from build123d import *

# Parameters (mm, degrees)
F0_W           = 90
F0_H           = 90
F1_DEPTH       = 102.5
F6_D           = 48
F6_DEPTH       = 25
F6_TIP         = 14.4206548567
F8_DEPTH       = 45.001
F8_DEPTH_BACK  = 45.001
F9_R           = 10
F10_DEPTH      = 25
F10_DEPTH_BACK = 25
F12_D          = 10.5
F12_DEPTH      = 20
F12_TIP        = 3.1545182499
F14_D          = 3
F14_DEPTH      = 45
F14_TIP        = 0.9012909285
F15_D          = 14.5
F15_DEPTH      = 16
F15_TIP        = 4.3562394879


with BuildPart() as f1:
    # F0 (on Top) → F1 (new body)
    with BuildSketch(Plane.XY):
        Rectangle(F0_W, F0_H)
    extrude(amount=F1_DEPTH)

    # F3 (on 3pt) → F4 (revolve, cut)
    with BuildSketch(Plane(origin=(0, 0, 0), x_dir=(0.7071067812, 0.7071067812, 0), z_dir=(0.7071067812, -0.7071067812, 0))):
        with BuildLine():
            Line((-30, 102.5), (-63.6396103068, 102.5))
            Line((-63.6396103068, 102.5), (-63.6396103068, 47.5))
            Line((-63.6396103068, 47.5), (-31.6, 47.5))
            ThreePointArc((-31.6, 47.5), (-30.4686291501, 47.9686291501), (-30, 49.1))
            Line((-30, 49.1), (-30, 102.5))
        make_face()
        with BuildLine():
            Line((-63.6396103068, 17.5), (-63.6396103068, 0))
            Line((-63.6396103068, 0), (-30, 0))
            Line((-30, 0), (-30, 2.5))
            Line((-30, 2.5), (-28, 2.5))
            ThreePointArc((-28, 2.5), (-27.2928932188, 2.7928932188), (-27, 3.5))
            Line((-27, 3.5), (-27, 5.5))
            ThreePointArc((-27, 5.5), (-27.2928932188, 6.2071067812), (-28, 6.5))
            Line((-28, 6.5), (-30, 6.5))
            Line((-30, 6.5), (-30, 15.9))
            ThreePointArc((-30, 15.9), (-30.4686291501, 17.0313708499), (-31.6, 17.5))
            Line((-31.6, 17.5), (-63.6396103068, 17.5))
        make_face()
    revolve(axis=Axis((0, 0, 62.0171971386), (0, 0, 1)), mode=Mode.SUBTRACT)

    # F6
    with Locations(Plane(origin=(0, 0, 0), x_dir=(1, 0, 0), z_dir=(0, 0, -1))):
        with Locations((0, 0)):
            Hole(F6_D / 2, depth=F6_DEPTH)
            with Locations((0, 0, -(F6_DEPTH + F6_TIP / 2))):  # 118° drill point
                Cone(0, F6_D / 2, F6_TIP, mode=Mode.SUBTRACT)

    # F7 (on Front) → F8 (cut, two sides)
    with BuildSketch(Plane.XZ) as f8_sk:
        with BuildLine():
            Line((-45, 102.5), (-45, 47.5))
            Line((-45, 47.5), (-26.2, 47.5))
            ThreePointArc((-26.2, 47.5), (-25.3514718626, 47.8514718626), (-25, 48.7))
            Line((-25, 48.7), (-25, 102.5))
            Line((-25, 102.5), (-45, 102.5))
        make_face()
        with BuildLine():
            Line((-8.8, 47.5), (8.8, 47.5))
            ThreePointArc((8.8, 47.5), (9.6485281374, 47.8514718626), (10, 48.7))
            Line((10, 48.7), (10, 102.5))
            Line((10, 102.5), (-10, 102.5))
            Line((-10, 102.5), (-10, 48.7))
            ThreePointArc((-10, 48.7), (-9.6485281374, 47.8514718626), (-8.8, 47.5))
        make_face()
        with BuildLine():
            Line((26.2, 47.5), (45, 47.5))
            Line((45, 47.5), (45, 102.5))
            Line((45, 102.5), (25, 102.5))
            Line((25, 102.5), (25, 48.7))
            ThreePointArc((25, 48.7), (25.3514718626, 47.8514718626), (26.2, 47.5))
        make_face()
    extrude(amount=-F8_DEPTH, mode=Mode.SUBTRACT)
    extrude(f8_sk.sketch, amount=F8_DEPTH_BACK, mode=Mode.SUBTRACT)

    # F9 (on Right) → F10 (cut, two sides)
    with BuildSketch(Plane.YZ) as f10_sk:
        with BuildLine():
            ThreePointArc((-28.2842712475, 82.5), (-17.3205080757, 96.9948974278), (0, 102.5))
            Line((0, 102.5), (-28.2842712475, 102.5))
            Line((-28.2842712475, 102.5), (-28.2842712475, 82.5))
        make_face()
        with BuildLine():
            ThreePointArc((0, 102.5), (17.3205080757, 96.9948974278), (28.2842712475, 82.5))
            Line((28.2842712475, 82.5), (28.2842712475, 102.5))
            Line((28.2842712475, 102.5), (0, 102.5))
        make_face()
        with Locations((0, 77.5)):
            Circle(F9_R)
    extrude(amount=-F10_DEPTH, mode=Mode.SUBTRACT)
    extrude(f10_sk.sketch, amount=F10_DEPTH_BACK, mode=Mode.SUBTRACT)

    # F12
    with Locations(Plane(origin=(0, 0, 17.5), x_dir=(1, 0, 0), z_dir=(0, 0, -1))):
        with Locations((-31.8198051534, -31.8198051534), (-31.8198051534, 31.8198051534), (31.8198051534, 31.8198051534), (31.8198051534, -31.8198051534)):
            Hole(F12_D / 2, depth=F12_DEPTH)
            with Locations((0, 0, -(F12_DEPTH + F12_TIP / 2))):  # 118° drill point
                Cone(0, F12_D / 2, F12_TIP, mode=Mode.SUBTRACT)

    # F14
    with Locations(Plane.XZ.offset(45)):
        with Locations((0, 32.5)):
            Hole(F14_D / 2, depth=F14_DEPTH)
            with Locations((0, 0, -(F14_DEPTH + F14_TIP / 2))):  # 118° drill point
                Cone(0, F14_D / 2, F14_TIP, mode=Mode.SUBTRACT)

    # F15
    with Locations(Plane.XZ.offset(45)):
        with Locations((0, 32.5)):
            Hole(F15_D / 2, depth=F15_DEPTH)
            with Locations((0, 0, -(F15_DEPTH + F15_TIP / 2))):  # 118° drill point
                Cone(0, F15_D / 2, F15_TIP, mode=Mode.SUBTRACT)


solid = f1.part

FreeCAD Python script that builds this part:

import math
import FreeCAD as App
import Part
import Sketcher
from FreeCAD import Vector
Q = App.Units.Quantity

doc = App.newDocument("Part")
params = doc.addObject("Spreadsheet::Sheet", "Params")
for row, (alias, value) in enumerate([
    ("sketch1_width", "90 mm"),
    ("pad1_length", "102.5 mm"),
    ("sketch2_radius", "1 mm"),
    ("sketch2_radius2", "1.6 mm"),
    ("sketch2_width", "2 mm"),
    ("sketch2_height", "55 mm"),
    ("sketch2_height2", "17.5 mm"),
    ("groove_angle", "360 deg"),
    ("sketch3_diameter", "48 mm"),
    ("hole_diameter", "48 mm"),
    ("hole_depth", "25 mm"),
    ("sketch4_radius", "1.2 mm"),
    ("sketch4_width", "20 mm"),
    ("sketch4_height", "55 mm"),
    ("sketch5_diameter", "20 mm"),
    ("sketch5_radius", "30 mm"),
    ("sketch5_height", "20 mm"),
    ("sketch6_diameter", "10.5 mm"),
    ("hole2_diameter", "10.5 mm"),
    ("hole2_depth", "20 mm"),
    ("sketch7_diameter", "3 mm"),
    ("hole3_diameter", "3 mm"),
    ("hole3_depth", "45 mm"),
    ("sketch8_diameter", "14.5 mm"),
    ("hole4_diameter", "14.5 mm"),
    ("hole4_depth", "16 mm"),
], start=1):
    params.set(f"A{row}", alias)
    params.set(f"B{row}", "=" + value)
    params.setAlias(f"B{row}", alias)

body = doc.addObject("PartDesign::Body", "Body")

# Sketch on XY plane
sketch1 = body.newObject("Sketcher::SketchObject", "Sketch")
sketch1.AttachmentSupport = (doc.getObject("XY_Plane"), [""])
sketch1.MapMode = "FlatFace"
sketch1.addGeometry(Part.LineSegment(Vector(-45, 45, 0), Vector(-45, -45, 0)), False)
sketch1.addGeometry(Part.LineSegment(Vector(-45, -45, 0), Vector(45, -45, 0)), False)
sketch1.addGeometry(Part.LineSegment(Vector(45, -45, 0), Vector(45, 45, 0)), False)
sketch1.addGeometry(Part.LineSegment(Vector(45, 45, 0), Vector(-45, 45, 0)), False)
sketch1.addConstraint(Sketcher.Constraint("Coincident", 0, 2, 1, 1))
sketch1.addConstraint(Sketcher.Constraint("Coincident", 1, 2, 2, 1))
sketch1.addConstraint(Sketcher.Constraint("Coincident", 2, 2, 3, 1))
sketch1.addConstraint(Sketcher.Constraint("Coincident", 3, 2, 0, 1))
sketch1.addConstraint(Sketcher.Constraint("Vertical", 0))
sketch1.addConstraint(Sketcher.Constraint("Horizontal", 1))
sketch1.addConstraint(Sketcher.Constraint("Vertical", 2))
sketch1.addConstraint(Sketcher.Constraint("Horizontal", 3))
sketch1.addConstraint(Sketcher.Constraint("Symmetric", 0, 2, 2, 2, -1, 1))
sketch1.addConstraint(Sketcher.Constraint("Equal", 3, 0))
sketch1.addConstraint(Sketcher.Constraint("DistanceX", 1, 1, 1, 2, Q("90 mm")))
sketch1.setExpression("Constraints[10]", "Params.sketch1_width")
pad1 = body.newObject("PartDesign::Pad", "Pad")
pad1.Profile = sketch1
pad1.setExpression("Length", "Params.pad1_length")

# Sketch on an angled plane
sketch2 = body.newObject("Sketcher::SketchObject", "Sketch001")
sketch2.Placement = App.Placement(Vector(0, 0, 0), App.Rotation(Vector(0.707106781, 0.707106781, 0), Vector(0, 0, 0.999999999), Vector(0.707106781, -0.707106781, 0), "ZXY"))
sketch2.addGeometry(Part.LineSegment(Vector(-30, 102.5, 0), Vector(-63.6, 102.5, 0)), False)
sketch2.addGeometry(Part.LineSegment(Vector(-63.6, 102.5, 0), Vector(-63.6, 47.5, 0)), False)
sketch2.addGeometry(Part.LineSegment(Vector(-63.6, 47.5, 0), Vector(-31.6, 47.5, 0)), False)
sketch2.addGeometry(Part.ArcOfCircle(Part.Circle(Vector(-31.6, 49.1, 0), Vector(0, 0, 1), 1.6), math.radians(-90), math.radians(0)), False)
sketch2.addGeometry(Part.LineSegment(Vector(-30, 49.1, 0), Vector(-30, 102.5, 0)), False)
sketch2.addGeometry(Part.LineSegment(Vector(-63.6, 17.5, 0), Vector(-63.6, 0, 0)), False)
sketch2.addGeometry(Part.LineSegment(Vector(-63.6, 0, 0), Vector(-30, 0, 0)), False)
sketch2.addGeometry(Part.LineSegment(Vector(-30, 0, 0), Vector(-30, 2.5, 0)), False)
sketch2.addGeometry(Part.LineSegment(Vector(-30, 2.5, 0), Vector(-28, 2.5, 0)), False)
sketch2.addGeometry(Part.ArcOfCircle(Part.Circle(Vector(-28, 3.5, 0), Vector(0, 0, 1), 1), math.radians(-90), math.radians(0)), False)
sketch2.addGeometry(Part.LineSegment(Vector(-27, 3.5, 0), Vector(-27, 5.5, 0)), False)
sketch2.addGeometry(Part.ArcOfCircle(Part.Circle(Vector(-28, 5.5, 0), Vector(0, 0, 1), 1), math.radians(0), math.radians(90)), False)
sketch2.addGeometry(Part.LineSegment(Vector(-28, 6.5, 0), Vector(-30, 6.5, 0)), False)
sketch2.addGeometry(Part.LineSegment(Vector(-30, 6.5, 0), Vector(-30, 15.9, 0)), False)
sketch2.addGeometry(Part.ArcOfCircle(Part.Circle(Vector(-31.6, 15.9, 0), Vector(0, 0, 1), 1.6), math.radians(0), math.radians(90)), False)
sketch2.addGeometry(Part.LineSegment(Vector(-31.6, 17.5, 0), Vector(-63.6, 17.5, 0)), False)
sketch2.addConstraint(Sketcher.Constraint("Coincident", 0, 2, 1, 1))
sketch2.addConstraint(Sketcher.Constraint("Coincident", 1, 2, 2, 1))
sketch2.addConstraint(Sketcher.Constraint("Tangent", 2, 2, 3, 1))
sketch2.addConstraint(Sketcher.Constraint("Tangent", 3, 2, 4, 1))
sketch2.addConstraint(Sketcher.Constraint("Coincident", 4, 2, 0, 1))
sketch2.addConstraint(Sketcher.Constraint("Coincident", 5, 2, 6, 1))
sketch2.addConstraint(Sketcher.Constraint("Coincident", 6, 2, 7, 1))
sketch2.addConstraint(Sketcher.Constraint("Coincident", 7, 2, 8, 1))
sketch2.addConstraint(Sketcher.Constraint("Tangent", 8, 2, 9, 1))
sketch2.addConstraint(Sketcher.Constraint("Tangent", 9, 2, 10, 1))
sketch2.addConstraint(Sketcher.Constraint("Tangent", 10, 2, 11, 1))
sketch2.addConstraint(Sketcher.Constraint("Tangent", 11, 2, 12, 1))
sketch2.addConstraint(Sketcher.Constraint("Coincident", 12, 2, 13, 1))
sketch2.addConstraint(Sketcher.Constraint("Tangent", 13, 2, 14, 1))
sketch2.addConstraint(Sketcher.Constraint("Tangent", 14, 2, 15, 1))
sketch2.addConstraint(Sketcher.Constraint("Coincident", 15, 2, 5, 1))
sketch2.addConstraint(Sketcher.Constraint("Horizontal", 0))
sketch2.addConstraint(Sketcher.Constraint("Vertical", 1))
sketch2.addConstraint(Sketcher.Constraint("Horizontal", 2))
sketch2.addConstraint(Sketcher.Constraint("Vertical", 4))
sketch2.addConstraint(Sketcher.Constraint("Vertical", 5))
sketch2.addConstraint(Sketcher.Constraint("Horizontal", 6))
sketch2.addConstraint(Sketcher.Constraint("Vertical", 7))
sketch2.addConstraint(Sketcher.Constraint("Horizontal", 8))
sketch2.addConstraint(Sketcher.Constraint("Vertical", 10))
sketch2.addConstraint(Sketcher.Constraint("Horizontal", 12))
sketch2.addConstraint(Sketcher.Constraint("Vertical", 13))
sketch2.addConstraint(Sketcher.Constraint("Horizontal", 15))
sketch2.addConstraint(Sketcher.Constraint("Equal", 9, 11))
sketch2.addConstraint(Sketcher.Constraint("Equal", 3, 14))
sketch2.addConstraint(Sketcher.Constraint("PointOnObject", 5, 2, -1))
sketch2.addConstraint(Sketcher.Constraint("Vertical", 3, 3, 14, 3))
sketch2.addConstraint(Sketcher.Constraint("Vertical", 1, 2, 5, 2))
sketch2.addConstraint(Sketcher.Constraint("Vertical", 4, 2, 6, 2))
sketch2.addConstraint(Sketcher.Constraint("Equal", 12, 10))
sketch2.addConstraint(Sketcher.Constraint("Radius", 9, Q("1 mm")))
sketch2.addConstraint(Sketcher.Constraint("Radius", 3, Q("1.6 mm")))
sketch2.addConstraint(Sketcher.Constraint("DistanceX", 8, 1, 8, 2, Q("2 mm")))
sketch2.addConstraint(Sketcher.Constraint("DistanceY", 1, 2, 1, 1, Q("55 mm")))
sketch2.addConstraint(Sketcher.Constraint("DistanceY", 5, 2, 5, 1, Q("17.5 mm")))
sketch2.addConstraint(Sketcher.Constraint("DistanceY", 7, 1, 7, 2, Q("2.5 mm")))
sketch2.addConstraint(Sketcher.Constraint("DistanceX", 9, 3, -1, 1, Q("28 mm")))
sketch2.addConstraint(Sketcher.Constraint("DistanceY", 11, 3, 0, 2, Q("97 mm")))
sketch2.addConstraint(Sketcher.Constraint("DistanceX", 0, 2, 0, 1, Q("33.63961 mm")))
sketch2.setExpression("Constraints[35]", "Params.sketch2_radius")
sketch2.setExpression("Constraints[36]", "Params.sketch2_radius2")
sketch2.setExpression("Constraints[37]", "Params.sketch2_width")
sketch2.setExpression("Constraints[38]", "Params.sketch2_height")
sketch2.setExpression("Constraints[39]", "Params.sketch2_height2")
groove = body.newObject("PartDesign::Groove", "Groove")
groove.Profile = sketch2
groove.ReferenceAxis = (sketch2, ["V_Axis"])
groove.setExpression("Angle", "Params.groove_angle")

# Sketch on XY plane
sketch3 = body.newObject("Sketcher::SketchObject", "Sketch002")
sketch3.AttachmentSupport = (doc.getObject("XY_Plane"), [""])
sketch3.MapMode = "FlatFace"
sketch3.addGeometry(Part.Circle(Vector(0, 0, 0), Vector(0, 0, 1), 24), False)
sketch3.addConstraint(Sketcher.Constraint("Coincident", 0, 3, -1, 1))
sketch3.addConstraint(Sketcher.Constraint("Diameter", 0, Q("48 mm")))
sketch3.setExpression("Constraints[1]", "Params.sketch3_diameter")
doc.recompute()
hole = body.newObject("PartDesign::Hole", "Hole")
hole.Profile = sketch3
hole.ThreadType = "None"
hole.setExpression("Diameter", "Params.hole_diameter")
hole.DepthType = "Dimension"
hole.setExpression("Depth", "Params.hole_depth")
hole.DrillPoint = "Angled"
hole.DrillPointAngle = 118
hole.Reversed = True

# Sketch on XZ plane
sketch4 = body.newObject("Sketcher::SketchObject", "Sketch003")
sketch4.AttachmentSupport = (doc.getObject("XZ_Plane"), [""])
sketch4.MapMode = "FlatFace"
sketch4.addGeometry(Part.LineSegment(Vector(-45, 102.5, 0), Vector(-45, 47.5, 0)), False)
sketch4.addGeometry(Part.LineSegment(Vector(-45, 47.5, 0), Vector(-26.2, 47.5, 0)), False)
sketch4.addGeometry(Part.ArcOfCircle(Part.Circle(Vector(-26.2, 48.7, 0), Vector(0, 0, 1), 1.2), math.radians(-90), math.radians(0)), False)
sketch4.addGeometry(Part.LineSegment(Vector(-25, 48.7, 0), Vector(-25, 102.5, 0)), False)
sketch4.addGeometry(Part.LineSegment(Vector(-25, 102.5, 0), Vector(-45, 102.5, 0)), False)
sketch4.addGeometry(Part.LineSegment(Vector(-8.8, 47.5, 0), Vector(8.8, 47.5, 0)), False)
sketch4.addGeometry(Part.ArcOfCircle(Part.Circle(Vector(8.8, 48.7, 0), Vector(0, 0, 1), 1.2), math.radians(-90), math.radians(0)), False)
sketch4.addGeometry(Part.LineSegment(Vector(10, 48.7, 0), Vector(10, 102.5, 0)), False)
sketch4.addGeometry(Part.LineSegment(Vector(10, 102.5, 0), Vector(-10, 102.5, 0)), False)
sketch4.addGeometry(Part.LineSegment(Vector(-10, 102.5, 0), Vector(-10, 48.7, 0)), False)
sketch4.addGeometry(Part.ArcOfCircle(Part.Circle(Vector(-8.8, 48.7, 0), Vector(0, 0, 1), 1.2), math.radians(180), math.radians(270)), False)
sketch4.addGeometry(Part.LineSegment(Vector(26.2, 47.5, 0), Vector(45, 47.5, 0)), False)
sketch4.addGeometry(Part.LineSegment(Vector(45, 47.5, 0), Vector(45, 102.5, 0)), False)
sketch4.addGeometry(Part.LineSegment(Vector(45, 102.5, 0), Vector(25, 102.5, 0)), False)
sketch4.addGeometry(Part.LineSegment(Vector(25, 102.5, 0), Vector(25, 48.7, 0)), False)
sketch4.addGeometry(Part.ArcOfCircle(Part.Circle(Vector(26.2, 48.7, 0), Vector(0, 0, 1), 1.2), math.radians(180), math.radians(270)), False)
sketch4.addConstraint(Sketcher.Constraint("Coincident", 0, 2, 1, 1))
sketch4.addConstraint(Sketcher.Constraint("Tangent", 1, 2, 2, 1))
sketch4.addConstraint(Sketcher.Constraint("Tangent", 2, 2, 3, 1))
sketch4.addConstraint(Sketcher.Constraint("Coincident", 3, 2, 4, 1))
sketch4.addConstraint(Sketcher.Constraint("Coincident", 4, 2, 0, 1))
sketch4.addConstraint(Sketcher.Constraint("Tangent", 5, 2, 6, 1))
sketch4.addConstraint(Sketcher.Constraint("Tangent", 6, 2, 7, 1))
sketch4.addConstraint(Sketcher.Constraint("Coincident", 7, 2, 8, 1))
sketch4.addConstraint(Sketcher.Constraint("Coincident", 8, 2, 9, 1))
sketch4.addConstraint(Sketcher.Constraint("Tangent", 9, 2, 10, 1))
sketch4.addConstraint(Sketcher.Constraint("Tangent", 10, 2, 5, 1))
sketch4.addConstraint(Sketcher.Constraint("Coincident", 11, 2, 12, 1))
sketch4.addConstraint(Sketcher.Constraint("Coincident", 12, 2, 13, 1))
sketch4.addConstraint(Sketcher.Constraint("Coincident", 13, 2, 14, 1))
sketch4.addConstraint(Sketcher.Constraint("Tangent", 14, 2, 15, 1))
sketch4.addConstraint(Sketcher.Constraint("Tangent", 15, 2, 11, 1))
sketch4.addConstraint(Sketcher.Constraint("Vertical", 0))
sketch4.addConstraint(Sketcher.Constraint("Horizontal", 1))
sketch4.addConstraint(Sketcher.Constraint("Vertical", 3))
sketch4.addConstraint(Sketcher.Constraint("Horizontal", 4))
sketch4.addConstraint(Sketcher.Constraint("Horizontal", 5))
sketch4.addConstraint(Sketcher.Constraint("Vertical", 7))
sketch4.addConstraint(Sketcher.Constraint("Horizontal", 8))
sketch4.addConstraint(Sketcher.Constraint("Vertical", 9))
sketch4.addConstraint(Sketcher.Constraint("Horizontal", 11))
sketch4.addConstraint(Sketcher.Constraint("Vertical", 12))
sketch4.addConstraint(Sketcher.Constraint("Horizontal", 13))
sketch4.addConstraint(Sketcher.Constraint("Vertical", 14))
sketch4.addConstraint(Sketcher.Constraint("Equal", 2, 6))
sketch4.addConstraint(Sketcher.Constraint("Equal", 6, 10))
sketch4.addConstraint(Sketcher.Constraint("Equal", 10, 15))
sketch4.addConstraint(Sketcher.Constraint("Symmetric", 2, 3, 15, 3, -2))
sketch4.addConstraint(Sketcher.Constraint("Symmetric", 4, 2, 12, 2, -2))
sketch4.addConstraint(Sketcher.Constraint("Horizontal", 2, 3, 6, 3))
sketch4.addConstraint(Sketcher.Constraint("Horizontal", 4, 2, 7, 2))
sketch4.addConstraint(Sketcher.Constraint("Equal", 4, 8))
sketch4.addConstraint(Sketcher.Constraint("Radius", 2, Q("1.2 mm")))
sketch4.addConstraint(Sketcher.Constraint("DistanceX", 4, 2, 4, 1, Q("20 mm")))
sketch4.addConstraint(Sketcher.Constraint("DistanceY", 0, 2, 0, 1, Q("55 mm")))
sketch4.addConstraint(Sketcher.Constraint("DistanceX", 0, 2, -1, 1, Q("45 mm")))
sketch4.addConstraint(Sketcher.Constraint("DistanceX", -1, 1, 6, 2, Q("10 mm")))
sketch4.addConstraint(Sketcher.Constraint("DistanceY", -1, 1, 2, 3, Q("48.7 mm")))
sketch4.setExpression("Constraints[36]", "Params.sketch4_radius")
sketch4.setExpression("Constraints[37]", "Params.sketch4_width")
sketch4.setExpression("Constraints[38]", "Params.sketch4_height")
pocket1 = body.newObject("PartDesign::Pocket", "Pocket")
pocket1.Profile = sketch4
pocket1.Type = "ThroughAll"
pocket1.Midplane = True

# Sketch on YZ plane
sketch5 = body.newObject("Sketcher::SketchObject", "Sketch004")
sketch5.AttachmentSupport = (doc.getObject("YZ_Plane"), [""])
sketch5.MapMode = "FlatFace"
sketch5.addGeometry(Part.ArcOfCircle(Part.Circle(Vector(0, 72, 0), Vector(0, 0, 1), 30), math.radians(90), math.radians(161)), False)
sketch5.addGeometry(Part.LineSegment(Vector(0, 102, 0), Vector(-28, 102, 0)), False)
sketch5.addGeometry(Part.LineSegment(Vector(-28, 102, 0), Vector(-28, 82, 0)), False)
sketch5.addGeometry(Part.ArcOfCircle(Part.Circle(Vector(0, 72, 0), Vector(0, 0, 1), 30), math.radians(19), math.radians(90)), False)
sketch5.addGeometry(Part.LineSegment(Vector(28, 82, 0), Vector(28, 102, 0)), False)
sketch5.addGeometry(Part.LineSegment(Vector(28, 102, 0), Vector(0, 102, 0)), False)
sketch5.addGeometry(Part.Circle(Vector(0, 78, 0), Vector(0, 0, 1), 10), False)
sketch5.addConstraint(Sketcher.Constraint("Tangent", 0, 1, 1, 1))
sketch5.addConstraint(Sketcher.Constraint("Coincident", 1, 2, 2, 1))
sketch5.addConstraint(Sketcher.Constraint("Coincident", 2, 2, 0, 2))
sketch5.addConstraint(Sketcher.Constraint("Coincident", 3, 1, 4, 1))
sketch5.addConstraint(Sketcher.Constraint("Coincident", 4, 2, 5, 1))
sketch5.addConstraint(Sketcher.Constraint("Tangent", 5, 2, 3, 2))
sketch5.addConstraint(Sketcher.Constraint("Horizontal", 1))
sketch5.addConstraint(Sketcher.Constraint("Vertical", 2))
sketch5.addConstraint(Sketcher.Constraint("Vertical", 4))
sketch5.addConstraint(Sketcher.Constraint("Horizontal", 5))
sketch5.addConstraint(Sketcher.Constraint("Coincident", 3, 3, 0, 3))
sketch5.addConstraint(Sketcher.Constraint("Equal", 0, 3))
sketch5.addConstraint(Sketcher.Constraint("Symmetric", 2, 2, 3, 1, -2))
sketch5.addConstraint(Sketcher.Constraint("PointOnObject", 6, 3, -2))
sketch5.addConstraint(Sketcher.Constraint("Diameter", 6, Q("20 mm")))
sketch5.addConstraint(Sketcher.Constraint("Radius", 0, Q("30 mm")))
sketch5.addConstraint(Sketcher.Constraint("DistanceY", 2, 2, 2, 1, Q("20 mm")))
sketch5.addConstraint(Sketcher.Constraint("DistanceY", 0, 3, 6, 3, Q("5 mm")))
sketch5.addConstraint(Sketcher.Constraint("DistanceY", -1, 1, 0, 3, Q("72.5 mm")))
sketch5.setExpression("Constraints[14]", "Params.sketch5_diameter")
sketch5.setExpression("Constraints[15]", "Params.sketch5_radius")
sketch5.setExpression("Constraints[16]", "Params.sketch5_height")
pocket2 = body.newObject("PartDesign::Pocket", "Pocket001")
pocket2.Profile = sketch5
pocket2.Type = "ThroughAll"
pocket2.Midplane = True

# Sketch on XY plane
sketch6 = body.newObject("Sketcher::SketchObject", "Sketch005")
sketch6.AttachmentSupport = (doc.getObject("XY_Plane"), [""])
sketch6.MapMode = "FlatFace"
sketch6.AttachmentOffset = App.Placement(Vector(0, 0, 17.5), App.Rotation())
sketch6.addGeometry(Part.Circle(Vector(-32, 32, 0), Vector(0, 0, 1), 5), False)
sketch6.addGeometry(Part.Circle(Vector(-32, -32, 0), Vector(0, 0, 1), 5), False)
sketch6.addGeometry(Part.Circle(Vector(32, -32, 0), Vector(0, 0, 1), 5), False)
sketch6.addGeometry(Part.Circle(Vector(32, 32, 0), Vector(0, 0, 1), 5), False)
sketch6.addConstraint(Sketcher.Constraint("Equal", 0, 1))
sketch6.addConstraint(Sketcher.Constraint("Equal", 1, 2))
sketch6.addConstraint(Sketcher.Constraint("Equal", 2, 3))
sketch6.addConstraint(Sketcher.Constraint("Symmetric", 0, 3, 2, 3, -1, 1))
sketch6.addConstraint(Sketcher.Constraint("Symmetric", 1, 3, 3, 3, -1, 1))
sketch6.addConstraint(Sketcher.Constraint("Symmetric", 1, 3, 2, 3, -2))
sketch6.addConstraint(Sketcher.Constraint("Diameter", 0, Q("10.5 mm")))
sketch6.addConstraint(Sketcher.Constraint("DistanceY", 1, 3, 0, 3, Q("63.63961 mm")))
sketch6.addConstraint(Sketcher.Constraint("DistanceX", 1, 3, 2, 3, Q("63.63961 mm")))
sketch6.setExpression("Constraints[6]", "Params.sketch6_diameter")
doc.recompute()
hole2 = body.newObject("PartDesign::Hole", "Hole001")
hole2.Profile = sketch6
hole2.ThreadType = "None"
hole2.setExpression("Diameter", "Params.hole2_diameter")
hole2.DepthType = "Dimension"
hole2.setExpression("Depth", "Params.hole2_depth")
hole2.DrillPoint = "Angled"
hole2.DrillPointAngle = 118
hole2.Reversed = True

# Sketch on XZ plane
sketch7 = body.newObject("Sketcher::SketchObject", "Sketch006")
sketch7.AttachmentSupport = (doc.getObject("XZ_Plane"), [""])
sketch7.MapMode = "FlatFace"
sketch7.AttachmentOffset = App.Placement(Vector(0, 0, 45), App.Rotation())
sketch7.addGeometry(Part.Circle(Vector(0, 32.5, 0), Vector(0, 0, 1), 1.5), False)
sketch7.addConstraint(Sketcher.Constraint("PointOnObject", 0, 3, -2))
sketch7.addConstraint(Sketcher.Constraint("Diameter", 0, Q("3 mm")))
sketch7.addConstraint(Sketcher.Constraint("DistanceY", -1, 1, 0, 3, Q("32.5 mm")))
sketch7.setExpression("Constraints[1]", "Params.sketch7_diameter")
doc.recompute()
hole3 = body.newObject("PartDesign::Hole", "Hole002")
hole3.Profile = sketch7
hole3.ThreadType = "None"
hole3.setExpression("Diameter", "Params.hole3_diameter")
hole3.DepthType = "Dimension"
hole3.setExpression("Depth", "Params.hole3_depth")
hole3.DrillPoint = "Angled"
hole3.DrillPointAngle = 118

# Sketch on XZ plane
sketch8 = body.newObject("Sketcher::SketchObject", "Sketch007")
sketch8.AttachmentSupport = (doc.getObject("XZ_Plane"), [""])
sketch8.MapMode = "FlatFace"
sketch8.AttachmentOffset = App.Placement(Vector(0, 0, 45), App.Rotation())
sketch8.addGeometry(Part.Circle(Vector(0, 32, 0), Vector(0, 0, 1), 7), False)
sketch8.addConstraint(Sketcher.Constraint("PointOnObject", 0, 3, -2))
sketch8.addConstraint(Sketcher.Constraint("Diameter", 0, Q("14.5 mm")))
sketch8.addConstraint(Sketcher.Constraint("DistanceY", -1, 1, 0, 3, Q("32.5 mm")))
sketch8.setExpression("Constraints[1]", "Params.sketch8_diameter")
doc.recompute()
hole4 = body.newObject("PartDesign::Hole", "Hole003")
hole4.Profile = sketch8
hole4.ThreadType = "None"
hole4.setExpression("Diameter", "Params.hole4_diameter")
hole4.DepthType = "Dimension"
hole4.setExpression("Depth", "Params.hole4_depth")
hole4.DrillPoint = "Angled"
hole4.DrillPointAngle = 118

doc.recompute()
